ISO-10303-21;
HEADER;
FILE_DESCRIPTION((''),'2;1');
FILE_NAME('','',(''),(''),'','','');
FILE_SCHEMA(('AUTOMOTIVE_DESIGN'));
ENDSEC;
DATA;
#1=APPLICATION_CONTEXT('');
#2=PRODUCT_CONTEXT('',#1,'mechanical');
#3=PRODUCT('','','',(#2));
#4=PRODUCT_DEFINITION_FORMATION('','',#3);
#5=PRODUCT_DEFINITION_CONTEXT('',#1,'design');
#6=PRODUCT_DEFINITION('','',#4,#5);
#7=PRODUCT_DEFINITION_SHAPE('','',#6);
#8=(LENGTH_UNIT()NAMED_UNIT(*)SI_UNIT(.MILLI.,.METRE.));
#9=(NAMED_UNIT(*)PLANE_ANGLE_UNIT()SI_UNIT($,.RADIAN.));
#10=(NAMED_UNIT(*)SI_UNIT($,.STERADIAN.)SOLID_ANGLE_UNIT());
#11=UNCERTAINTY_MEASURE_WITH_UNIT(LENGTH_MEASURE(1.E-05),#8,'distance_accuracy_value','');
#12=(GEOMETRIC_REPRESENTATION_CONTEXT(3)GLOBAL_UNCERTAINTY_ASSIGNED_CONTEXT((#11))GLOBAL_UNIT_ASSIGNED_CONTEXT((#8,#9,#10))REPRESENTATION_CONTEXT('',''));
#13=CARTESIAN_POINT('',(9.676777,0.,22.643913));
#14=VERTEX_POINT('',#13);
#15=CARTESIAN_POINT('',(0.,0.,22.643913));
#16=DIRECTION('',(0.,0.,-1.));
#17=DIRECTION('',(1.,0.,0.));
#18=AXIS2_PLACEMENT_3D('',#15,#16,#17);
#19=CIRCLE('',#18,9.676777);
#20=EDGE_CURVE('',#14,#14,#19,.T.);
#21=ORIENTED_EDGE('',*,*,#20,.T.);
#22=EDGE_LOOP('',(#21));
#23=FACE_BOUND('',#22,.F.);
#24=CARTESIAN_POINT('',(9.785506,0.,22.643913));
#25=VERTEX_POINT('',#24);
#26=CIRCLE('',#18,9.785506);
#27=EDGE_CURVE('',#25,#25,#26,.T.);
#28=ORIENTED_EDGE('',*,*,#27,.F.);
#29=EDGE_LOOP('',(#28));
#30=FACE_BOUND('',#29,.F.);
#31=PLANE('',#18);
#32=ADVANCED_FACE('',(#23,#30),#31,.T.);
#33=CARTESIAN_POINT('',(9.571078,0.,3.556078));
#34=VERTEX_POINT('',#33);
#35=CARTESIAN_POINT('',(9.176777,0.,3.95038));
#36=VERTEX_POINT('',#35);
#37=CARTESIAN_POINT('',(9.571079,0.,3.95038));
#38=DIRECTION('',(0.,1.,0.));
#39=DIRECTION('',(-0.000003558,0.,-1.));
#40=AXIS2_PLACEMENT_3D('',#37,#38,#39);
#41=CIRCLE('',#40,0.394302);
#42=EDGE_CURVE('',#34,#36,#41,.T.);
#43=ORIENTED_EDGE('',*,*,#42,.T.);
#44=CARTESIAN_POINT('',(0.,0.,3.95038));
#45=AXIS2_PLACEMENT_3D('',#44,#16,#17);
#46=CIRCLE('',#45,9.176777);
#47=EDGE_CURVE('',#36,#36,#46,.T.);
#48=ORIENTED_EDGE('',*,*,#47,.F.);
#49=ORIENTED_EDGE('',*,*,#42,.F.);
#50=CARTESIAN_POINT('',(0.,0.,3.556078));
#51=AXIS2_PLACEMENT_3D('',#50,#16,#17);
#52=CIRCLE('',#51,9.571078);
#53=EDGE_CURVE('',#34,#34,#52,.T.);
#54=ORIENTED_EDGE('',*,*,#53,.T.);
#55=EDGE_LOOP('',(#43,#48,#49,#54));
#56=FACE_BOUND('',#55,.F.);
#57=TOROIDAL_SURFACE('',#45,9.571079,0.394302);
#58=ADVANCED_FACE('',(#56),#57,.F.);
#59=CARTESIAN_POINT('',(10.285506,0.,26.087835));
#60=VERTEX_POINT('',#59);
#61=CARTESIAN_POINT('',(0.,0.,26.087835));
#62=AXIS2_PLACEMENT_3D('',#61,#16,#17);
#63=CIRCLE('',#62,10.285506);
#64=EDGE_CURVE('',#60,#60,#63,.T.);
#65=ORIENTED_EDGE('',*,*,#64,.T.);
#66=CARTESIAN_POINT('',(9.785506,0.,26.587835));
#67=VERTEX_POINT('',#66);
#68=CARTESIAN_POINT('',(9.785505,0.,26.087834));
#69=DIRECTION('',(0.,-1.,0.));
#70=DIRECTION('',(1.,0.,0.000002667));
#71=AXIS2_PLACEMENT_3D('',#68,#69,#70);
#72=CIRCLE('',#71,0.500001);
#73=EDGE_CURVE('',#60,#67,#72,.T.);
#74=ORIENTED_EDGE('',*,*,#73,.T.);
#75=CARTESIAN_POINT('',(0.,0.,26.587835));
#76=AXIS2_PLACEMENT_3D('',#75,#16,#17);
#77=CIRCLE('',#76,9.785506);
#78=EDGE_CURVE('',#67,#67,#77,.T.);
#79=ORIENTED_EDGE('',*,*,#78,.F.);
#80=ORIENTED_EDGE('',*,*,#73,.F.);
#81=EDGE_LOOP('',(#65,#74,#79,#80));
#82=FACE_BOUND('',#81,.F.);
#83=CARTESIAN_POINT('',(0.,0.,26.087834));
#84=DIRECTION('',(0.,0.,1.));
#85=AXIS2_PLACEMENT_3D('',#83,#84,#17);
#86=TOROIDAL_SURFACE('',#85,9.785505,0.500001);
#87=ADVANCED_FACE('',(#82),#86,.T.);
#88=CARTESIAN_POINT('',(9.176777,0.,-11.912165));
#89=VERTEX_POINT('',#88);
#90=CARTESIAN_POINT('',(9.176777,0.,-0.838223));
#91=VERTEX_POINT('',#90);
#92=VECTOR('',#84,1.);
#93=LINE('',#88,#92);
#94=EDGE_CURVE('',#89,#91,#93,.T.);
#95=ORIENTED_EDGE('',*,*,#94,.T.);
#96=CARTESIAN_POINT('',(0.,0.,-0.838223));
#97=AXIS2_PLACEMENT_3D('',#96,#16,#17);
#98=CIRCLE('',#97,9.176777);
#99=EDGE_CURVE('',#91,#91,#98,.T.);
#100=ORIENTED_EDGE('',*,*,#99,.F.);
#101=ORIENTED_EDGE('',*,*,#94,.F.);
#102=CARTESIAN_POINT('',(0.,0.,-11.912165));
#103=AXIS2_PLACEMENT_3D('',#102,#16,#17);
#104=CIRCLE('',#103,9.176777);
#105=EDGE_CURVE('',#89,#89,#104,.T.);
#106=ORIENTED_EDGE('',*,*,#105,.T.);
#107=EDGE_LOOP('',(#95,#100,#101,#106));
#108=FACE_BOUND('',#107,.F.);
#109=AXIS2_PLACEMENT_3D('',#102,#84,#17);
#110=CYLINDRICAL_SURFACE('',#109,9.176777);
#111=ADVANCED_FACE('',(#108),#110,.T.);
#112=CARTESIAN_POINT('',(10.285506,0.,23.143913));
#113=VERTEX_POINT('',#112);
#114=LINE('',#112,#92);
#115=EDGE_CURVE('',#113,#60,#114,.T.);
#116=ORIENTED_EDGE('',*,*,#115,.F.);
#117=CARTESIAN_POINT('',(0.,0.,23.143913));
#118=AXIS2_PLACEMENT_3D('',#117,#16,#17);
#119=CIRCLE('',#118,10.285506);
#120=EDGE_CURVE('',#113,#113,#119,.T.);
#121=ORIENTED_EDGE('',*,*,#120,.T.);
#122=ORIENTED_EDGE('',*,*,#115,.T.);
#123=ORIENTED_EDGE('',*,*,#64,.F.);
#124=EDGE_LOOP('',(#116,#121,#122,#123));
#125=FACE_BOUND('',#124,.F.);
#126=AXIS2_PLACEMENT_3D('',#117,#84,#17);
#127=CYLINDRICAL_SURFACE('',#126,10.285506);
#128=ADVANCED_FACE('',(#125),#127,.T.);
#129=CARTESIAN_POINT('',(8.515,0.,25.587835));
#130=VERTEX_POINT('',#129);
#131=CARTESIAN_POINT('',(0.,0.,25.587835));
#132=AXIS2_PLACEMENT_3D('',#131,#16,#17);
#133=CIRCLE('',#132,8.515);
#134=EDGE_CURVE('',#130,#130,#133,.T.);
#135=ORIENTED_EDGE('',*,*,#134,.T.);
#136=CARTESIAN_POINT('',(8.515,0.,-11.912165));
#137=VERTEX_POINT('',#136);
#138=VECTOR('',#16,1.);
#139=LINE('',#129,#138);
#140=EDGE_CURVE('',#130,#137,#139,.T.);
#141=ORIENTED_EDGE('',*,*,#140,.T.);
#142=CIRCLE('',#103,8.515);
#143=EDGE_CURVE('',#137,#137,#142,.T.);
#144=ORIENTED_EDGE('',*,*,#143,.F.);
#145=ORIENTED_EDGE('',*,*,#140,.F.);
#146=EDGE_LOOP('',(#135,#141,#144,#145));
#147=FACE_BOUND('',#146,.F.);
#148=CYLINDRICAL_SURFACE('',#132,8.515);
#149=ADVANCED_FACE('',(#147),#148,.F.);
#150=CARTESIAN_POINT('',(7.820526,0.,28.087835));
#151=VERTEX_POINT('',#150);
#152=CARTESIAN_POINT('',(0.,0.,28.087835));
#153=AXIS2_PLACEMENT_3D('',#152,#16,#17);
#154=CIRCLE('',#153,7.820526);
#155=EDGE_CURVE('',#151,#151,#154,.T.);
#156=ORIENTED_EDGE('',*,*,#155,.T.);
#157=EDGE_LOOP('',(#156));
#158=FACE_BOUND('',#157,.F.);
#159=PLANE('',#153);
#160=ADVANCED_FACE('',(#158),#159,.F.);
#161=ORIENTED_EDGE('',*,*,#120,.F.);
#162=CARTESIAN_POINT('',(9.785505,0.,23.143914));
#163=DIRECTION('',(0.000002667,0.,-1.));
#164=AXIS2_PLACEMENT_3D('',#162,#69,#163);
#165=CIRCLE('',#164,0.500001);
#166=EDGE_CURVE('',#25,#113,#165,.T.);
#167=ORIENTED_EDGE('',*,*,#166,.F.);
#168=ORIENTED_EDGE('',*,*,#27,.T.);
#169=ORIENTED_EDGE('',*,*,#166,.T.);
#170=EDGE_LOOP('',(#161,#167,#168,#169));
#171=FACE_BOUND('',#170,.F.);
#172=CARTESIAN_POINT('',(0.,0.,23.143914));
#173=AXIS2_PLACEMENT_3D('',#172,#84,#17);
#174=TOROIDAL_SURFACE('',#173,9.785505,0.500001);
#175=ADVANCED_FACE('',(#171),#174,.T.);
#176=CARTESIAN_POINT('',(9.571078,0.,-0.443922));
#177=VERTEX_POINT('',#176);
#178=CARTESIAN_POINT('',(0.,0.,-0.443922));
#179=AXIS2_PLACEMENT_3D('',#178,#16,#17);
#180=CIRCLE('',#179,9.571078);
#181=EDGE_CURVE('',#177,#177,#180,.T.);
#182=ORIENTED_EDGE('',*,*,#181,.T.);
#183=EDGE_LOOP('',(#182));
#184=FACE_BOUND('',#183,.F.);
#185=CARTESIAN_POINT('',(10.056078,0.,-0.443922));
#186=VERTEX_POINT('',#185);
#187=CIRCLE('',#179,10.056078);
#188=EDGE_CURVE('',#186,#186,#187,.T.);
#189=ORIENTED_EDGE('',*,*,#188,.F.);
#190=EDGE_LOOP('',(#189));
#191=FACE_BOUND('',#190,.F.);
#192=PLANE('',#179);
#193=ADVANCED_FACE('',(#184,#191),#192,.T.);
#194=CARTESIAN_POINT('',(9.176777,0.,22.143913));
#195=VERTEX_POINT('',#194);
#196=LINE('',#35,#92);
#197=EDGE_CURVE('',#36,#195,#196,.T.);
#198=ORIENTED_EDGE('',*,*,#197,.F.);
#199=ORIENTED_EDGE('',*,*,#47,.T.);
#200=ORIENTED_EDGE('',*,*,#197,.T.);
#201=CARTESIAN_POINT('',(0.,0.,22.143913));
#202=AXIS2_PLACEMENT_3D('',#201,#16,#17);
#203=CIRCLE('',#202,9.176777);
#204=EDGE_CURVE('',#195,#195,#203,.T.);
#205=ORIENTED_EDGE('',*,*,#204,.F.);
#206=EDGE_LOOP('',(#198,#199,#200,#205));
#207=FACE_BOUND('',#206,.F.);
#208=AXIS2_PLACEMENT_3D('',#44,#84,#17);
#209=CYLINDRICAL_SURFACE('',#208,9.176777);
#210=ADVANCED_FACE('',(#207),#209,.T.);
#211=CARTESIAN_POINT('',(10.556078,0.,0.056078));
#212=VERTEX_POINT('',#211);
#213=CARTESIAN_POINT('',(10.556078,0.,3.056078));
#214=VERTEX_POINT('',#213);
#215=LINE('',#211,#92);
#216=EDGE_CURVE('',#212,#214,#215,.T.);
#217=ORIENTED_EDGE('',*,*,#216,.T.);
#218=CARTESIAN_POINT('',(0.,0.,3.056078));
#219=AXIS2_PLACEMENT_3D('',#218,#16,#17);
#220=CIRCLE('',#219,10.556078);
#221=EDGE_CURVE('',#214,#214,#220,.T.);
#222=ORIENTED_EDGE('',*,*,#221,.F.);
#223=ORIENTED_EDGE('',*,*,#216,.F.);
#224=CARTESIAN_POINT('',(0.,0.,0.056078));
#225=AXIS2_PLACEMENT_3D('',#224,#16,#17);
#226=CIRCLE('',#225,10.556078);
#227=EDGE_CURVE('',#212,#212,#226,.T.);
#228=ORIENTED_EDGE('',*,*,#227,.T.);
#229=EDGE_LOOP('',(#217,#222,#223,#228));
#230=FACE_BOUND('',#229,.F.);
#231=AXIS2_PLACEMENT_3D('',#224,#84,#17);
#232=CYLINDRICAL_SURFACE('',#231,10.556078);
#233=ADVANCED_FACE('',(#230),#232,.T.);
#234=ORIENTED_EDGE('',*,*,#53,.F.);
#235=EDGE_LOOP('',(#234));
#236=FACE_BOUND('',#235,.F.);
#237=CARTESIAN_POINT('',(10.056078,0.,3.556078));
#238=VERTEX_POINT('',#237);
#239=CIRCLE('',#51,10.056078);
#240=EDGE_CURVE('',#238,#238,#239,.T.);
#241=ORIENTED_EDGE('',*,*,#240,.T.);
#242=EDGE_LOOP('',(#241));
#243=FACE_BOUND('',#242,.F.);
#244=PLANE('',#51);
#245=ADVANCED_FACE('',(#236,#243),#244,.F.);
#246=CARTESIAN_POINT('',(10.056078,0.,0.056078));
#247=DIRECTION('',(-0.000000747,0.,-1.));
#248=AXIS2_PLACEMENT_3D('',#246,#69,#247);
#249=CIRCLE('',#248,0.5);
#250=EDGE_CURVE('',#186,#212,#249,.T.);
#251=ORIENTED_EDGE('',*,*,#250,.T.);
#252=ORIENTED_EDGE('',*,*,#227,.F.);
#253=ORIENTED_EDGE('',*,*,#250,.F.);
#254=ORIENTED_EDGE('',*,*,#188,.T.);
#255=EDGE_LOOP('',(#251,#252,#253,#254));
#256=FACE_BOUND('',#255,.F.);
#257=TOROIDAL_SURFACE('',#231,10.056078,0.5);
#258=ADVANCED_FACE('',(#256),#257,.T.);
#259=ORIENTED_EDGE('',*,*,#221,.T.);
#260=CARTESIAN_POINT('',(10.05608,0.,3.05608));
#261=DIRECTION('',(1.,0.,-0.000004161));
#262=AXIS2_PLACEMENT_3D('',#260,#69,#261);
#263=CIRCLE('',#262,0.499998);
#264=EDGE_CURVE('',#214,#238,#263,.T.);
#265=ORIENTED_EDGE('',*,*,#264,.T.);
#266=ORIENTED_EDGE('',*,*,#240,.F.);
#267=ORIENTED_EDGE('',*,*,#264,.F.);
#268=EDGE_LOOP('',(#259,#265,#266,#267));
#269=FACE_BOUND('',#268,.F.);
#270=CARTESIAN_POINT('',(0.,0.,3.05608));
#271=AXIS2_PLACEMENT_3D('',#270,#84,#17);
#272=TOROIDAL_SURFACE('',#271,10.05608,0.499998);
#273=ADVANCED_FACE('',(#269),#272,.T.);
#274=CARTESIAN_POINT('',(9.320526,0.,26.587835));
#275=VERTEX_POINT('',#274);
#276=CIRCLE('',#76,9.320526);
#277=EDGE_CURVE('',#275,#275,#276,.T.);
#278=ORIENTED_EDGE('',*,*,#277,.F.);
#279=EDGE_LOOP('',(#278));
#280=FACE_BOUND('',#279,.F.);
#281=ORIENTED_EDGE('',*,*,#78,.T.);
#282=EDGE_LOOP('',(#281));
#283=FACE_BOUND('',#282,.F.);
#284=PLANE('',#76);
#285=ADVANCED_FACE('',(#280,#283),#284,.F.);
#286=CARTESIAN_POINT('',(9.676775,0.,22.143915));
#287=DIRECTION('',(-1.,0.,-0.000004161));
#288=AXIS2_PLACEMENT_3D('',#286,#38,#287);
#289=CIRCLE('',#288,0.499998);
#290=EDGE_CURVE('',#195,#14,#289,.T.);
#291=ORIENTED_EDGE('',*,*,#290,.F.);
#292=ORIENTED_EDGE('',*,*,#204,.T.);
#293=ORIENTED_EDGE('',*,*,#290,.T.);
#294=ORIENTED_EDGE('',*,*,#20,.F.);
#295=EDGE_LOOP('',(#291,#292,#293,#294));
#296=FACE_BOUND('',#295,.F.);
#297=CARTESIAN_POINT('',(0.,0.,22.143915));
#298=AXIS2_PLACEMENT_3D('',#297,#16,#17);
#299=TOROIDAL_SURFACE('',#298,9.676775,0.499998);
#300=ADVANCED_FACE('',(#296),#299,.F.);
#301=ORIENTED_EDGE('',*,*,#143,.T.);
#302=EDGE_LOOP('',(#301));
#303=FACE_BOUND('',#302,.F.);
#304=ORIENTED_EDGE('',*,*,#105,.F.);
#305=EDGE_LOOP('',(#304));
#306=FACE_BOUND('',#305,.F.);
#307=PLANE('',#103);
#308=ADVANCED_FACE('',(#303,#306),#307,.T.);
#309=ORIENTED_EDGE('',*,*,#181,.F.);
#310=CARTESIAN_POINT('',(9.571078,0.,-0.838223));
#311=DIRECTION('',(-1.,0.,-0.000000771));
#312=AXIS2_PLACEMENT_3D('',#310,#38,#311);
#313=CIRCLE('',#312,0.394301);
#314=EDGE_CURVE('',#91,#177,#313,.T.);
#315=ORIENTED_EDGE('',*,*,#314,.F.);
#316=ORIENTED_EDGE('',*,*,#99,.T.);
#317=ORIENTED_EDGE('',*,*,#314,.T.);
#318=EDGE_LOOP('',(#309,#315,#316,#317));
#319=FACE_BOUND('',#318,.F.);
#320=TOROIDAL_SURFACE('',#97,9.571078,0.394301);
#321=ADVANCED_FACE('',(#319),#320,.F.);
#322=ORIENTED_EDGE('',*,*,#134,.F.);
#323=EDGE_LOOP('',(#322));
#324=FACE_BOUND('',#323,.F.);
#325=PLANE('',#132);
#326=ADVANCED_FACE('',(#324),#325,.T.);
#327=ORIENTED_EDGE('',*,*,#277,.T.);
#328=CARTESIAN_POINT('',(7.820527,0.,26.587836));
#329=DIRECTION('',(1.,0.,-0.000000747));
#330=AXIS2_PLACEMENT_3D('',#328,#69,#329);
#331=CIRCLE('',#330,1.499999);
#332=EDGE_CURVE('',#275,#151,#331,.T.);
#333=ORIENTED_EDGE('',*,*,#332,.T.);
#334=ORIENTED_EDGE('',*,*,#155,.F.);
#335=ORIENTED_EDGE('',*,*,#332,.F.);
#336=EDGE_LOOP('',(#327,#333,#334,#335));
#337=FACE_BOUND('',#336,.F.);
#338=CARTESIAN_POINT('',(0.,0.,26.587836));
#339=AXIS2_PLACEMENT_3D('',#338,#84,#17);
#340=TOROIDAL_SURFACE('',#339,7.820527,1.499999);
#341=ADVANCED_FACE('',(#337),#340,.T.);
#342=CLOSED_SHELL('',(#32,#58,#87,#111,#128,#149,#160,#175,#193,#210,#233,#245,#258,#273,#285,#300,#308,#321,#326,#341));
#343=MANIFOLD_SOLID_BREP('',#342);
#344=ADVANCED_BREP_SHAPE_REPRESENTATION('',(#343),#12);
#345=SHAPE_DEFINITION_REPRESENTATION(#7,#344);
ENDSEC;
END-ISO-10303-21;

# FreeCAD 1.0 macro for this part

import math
import FreeCAD as App
import Part
import Sketcher
from FreeCAD import Vector

doc = App.newDocument("Part")
body = doc.addObject("PartDesign::Body", "Body")

# Sketch on XZ plane
sketch1 = body.newObject("Sketcher::SketchObject", "Sketch")
sketch1.AttachmentSupport = (doc.getObject("XZ_Plane"), [""])
sketch1.MapMode = "FlatFace"
sketch1.addGeometry([
    Part.LineSegment(Vector(0, 28.087835, 0), Vector(0, 25.587835, 0)),  # 0
    Part.LineSegment(Vector(0, 25.587835, 0), Vector(8.515, 25.587835, 0)),  # 1
    Part.LineSegment(Vector(8.515, 25.587835, 0), Vector(8.515, -11.912165, 0)),  # 2
    Part.LineSegment(Vector(8.515, -11.912165, 0), Vector(9.176777, -11.912165, 0)),  # 3
    Part.LineSegment(Vector(9.176777, -11.912165, 0), Vector(9.176777, -0.838223, 0)),  # 4
    Part.ArcOfCircle(Part.Circle(Vector(9.571078, -0.838223, 0), Vector(0, 0, 1), 0.394301), math.radians(89.999956), math.radians(180.000044)),  # 5
    Part.LineSegment(Vector(9.571078, -0.443922, 0), Vector(10.056078, -0.443922, 0)),  # 6
    Part.ArcOfCircle(Part.Circle(Vector(10.056078, 0.056078, 0), Vector(0, 0, 1), 0.5), math.radians(-90.000043), math.radians(0.000043)),  # 7
    Part.LineSegment(Vector(10.556078, 0.056078, 0), Vector(10.556078, 3.056078, 0)),  # 8
    Part.ArcOfCircle(Part.Circle(Vector(10.05608, 3.05608, 0), Vector(0, 0, 1), 0.499998), math.radians(-0.000238), math.radians(90.000238)),  # 9
    Part.LineSegment(Vector(10.056078, 3.556078, 0), Vector(9.571078, 3.556078, 0)),  # 10
    Part.ArcOfCircle(Part.Circle(Vector(9.571079, 3.95038, 0), Vector(0, 0, 1), 0.394302), math.radians(-179.999941), math.radians(-90.000204)),  # 11
    Part.LineSegment(Vector(9.176777, 3.95038, 0), Vector(9.176777, 22.143913, 0)),  # 12
    Part.ArcOfCircle(Part.Circle(Vector(9.676775, 22.143915, 0), Vector(0, 0, 1), 0.499998), math.radians(89.999762), math.radians(180.000238)),  # 13
    Part.LineSegment(Vector(9.676777, 22.643913, 0), Vector(9.785506, 22.643913, 0)),  # 14
    Part.ArcOfCircle(Part.Circle(Vector(9.785505, 23.143914, 0), Vector(0, 0, 1), 0.500001), math.radians(-89.999847), math.radians(-0.000153)),  # 15
    Part.LineSegment(Vector(10.285506, 23.143913, 0), Vector(10.285506, 26.087835, 0)),  # 16
    Part.ArcOfCircle(Part.Circle(Vector(9.785505, 26.087834, 0), Vector(0, 0, 1), 0.500001), math.radians(0.000153), math.radians(89.999847)),  # 17
    Part.LineSegment(Vector(9.785506, 26.587835, 0), Vector(9.320526, 26.587835, 0)),  # 18
    Part.ArcOfCircle(Part.Circle(Vector(7.820527, 26.587836, 0), Vector(0, 0, 1), 1.499999), math.radians(-0.000043), math.radians(90.000043)),  # 19
    Part.LineSegment(Vector(7.820526, 28.087835, 0), Vector(0, 28.087835, 0)),  # 20
], False)
sketch1.addConstraint([
    Sketcher.Constraint("Coincident", 0, 2, 1, 1),
    Sketcher.Constraint("Coincident", 1, 2, 2, 1),
    Sketcher.Constraint("Coincident", 2, 2, 3, 1),
    Sketcher.Constraint("Coincident", 3, 2, 4, 1),
    Sketcher.Constraint("Tangent", 4, 2, 5, 2),
    Sketcher.Constraint("Tangent", 5, 1, 6, 1),
    Sketcher.Constraint("Tangent", 6, 2, 7, 1),
    Sketcher.Constraint("Tangent", 7, 2, 8, 1),
    Sketcher.Constraint("Coincident", 8, 2, 9, 1),
    Sketcher.Constraint("Coincident", 9, 2, 10, 1),
    Sketcher.Constraint("Coincident", 10, 2, 11, 2),
    Sketcher.Constraint("Tangent", 11, 1, 12, 1),
    Sketcher.Constraint("Coincident", 12, 2, 13, 2),
    Sketcher.Constraint("Coincident", 13, 1, 14, 1),
    Sketcher.Constraint("Coincident", 14, 2, 15, 1),
    Sketcher.Constraint("Coincident", 15, 2, 16, 1),
    Sketcher.Constraint("Coincident", 16, 2, 17, 1),
    Sketcher.Constraint("Coincident", 17, 2, 18, 1),
    Sketcher.Constraint("Coincident", 18, 2, 19, 1),
    Sketcher.Constraint("Tangent", 19, 2, 20, 1),
    Sketcher.Constraint("Coincident", 20, 2, 0, 1),
    Sketcher.Constraint("Vertical", 0),
    Sketcher.Constraint("Horizontal", 1),
    Sketcher.Constraint("Vertical", 2),
    Sketcher.Constraint("Horizontal", 3),
    Sketcher.Constraint("Vertical", 4),
    Sketcher.Constraint("Horizontal", 6),
    Sketcher.Constraint("Vertical", 8),
    Sketcher.Constraint("Horizontal", 10),
    Sketcher.Constraint("Vertical", 12),
    Sketcher.Constraint("Horizontal", 14),
    Sketcher.Constraint("Vertical", 16),
    Sketcher.Constraint("Horizontal", 18),
    Sketcher.Constraint("Horizontal", 20),
    Sketcher.Constraint("Equal", 7, 9),
    Sketcher.Constraint("Equal", 5, 11),
    Sketcher.Constraint("Equal", 9, 13),
    Sketcher.Constraint("Equal", 7, 15),
    Sketcher.Constraint("Equal", 15, 17),
    Sketcher.Constraint("PointOnObject", 0, 2, -2),
    Sketcher.Constraint("Horizontal", 17, 3, 16, 2),
    Sketcher.Constraint("Horizontal", 19, 3, 17, 2),
    Sketcher.Constraint("Vertical", 5, 3, 11, 3),
    Sketcher.Constraint("Vertical", 6, 2, 9, 2),
    Sketcher.Constraint("Vertical", 5, 1, 10, 2),
    Sketcher.Constraint("Vertical", 17, 3, 14, 2),
    Sketcher.Constraint("Vertical", 14, 2, 17, 2),
    Sketcher.Constraint("Radius", 7, 0.5),
    Sketcher.Constraint("Radius", 19, 1.499999),
    Sketcher.Constraint("DistanceY", 8, 1, 8, 2, 3.0),
    Sketcher.Constraint("DistanceY", 0, 2, 0, 1, 2.5),
    Sketcher.Constraint("DistanceY", 2, 2, 2, 1, 37.5),
    Sketcher.Constraint("DistanceY", 12, 2, 15, 3, 1.000001),
    Sketcher.Constraint("DistanceY", 12, 2, 15, 2, 1.0),
    Sketcher.Constraint("Radius", 5, 0.394301),
    Sketcher.Constraint("DistanceY", 8, 2, 9, 2, 0.5),
    Sketcher.Constraint("DistanceX", 12, 2, 13, 1, 0.5),
    Sketcher.Constraint("DistanceX", 1, 1, 1, 2, 8.515),
    Sketcher.Constraint("DistanceX", 6, 1, 6, 2, 0.485),
    Sketcher.Constraint("DistanceX", 14, 1, 14, 2, 0.108729),
    Sketcher.Constraint("DistanceX", 18, 2, 18, 1, 0.46498),
    Sketcher.Constraint("DistanceY", 16, 1, 16, 2, 2.943922),
    Sketcher.Constraint("DistanceX", 3, 1, 3, 2, 0.661777),
    Sketcher.Constraint("DistanceY", 4, 1, 4, 2, 11.073942),
    Sketcher.Constraint("DistanceY", -1, 1, 9, 3, 3.05608),
])
revolution = body.newObject("PartDesign::Revolution", "Revolution")
revolution.Profile = sketch1
revolution.ReferenceAxis = (sketch1, ["V_Axis"])
revolution.Angle = 360

doc.recompute()
